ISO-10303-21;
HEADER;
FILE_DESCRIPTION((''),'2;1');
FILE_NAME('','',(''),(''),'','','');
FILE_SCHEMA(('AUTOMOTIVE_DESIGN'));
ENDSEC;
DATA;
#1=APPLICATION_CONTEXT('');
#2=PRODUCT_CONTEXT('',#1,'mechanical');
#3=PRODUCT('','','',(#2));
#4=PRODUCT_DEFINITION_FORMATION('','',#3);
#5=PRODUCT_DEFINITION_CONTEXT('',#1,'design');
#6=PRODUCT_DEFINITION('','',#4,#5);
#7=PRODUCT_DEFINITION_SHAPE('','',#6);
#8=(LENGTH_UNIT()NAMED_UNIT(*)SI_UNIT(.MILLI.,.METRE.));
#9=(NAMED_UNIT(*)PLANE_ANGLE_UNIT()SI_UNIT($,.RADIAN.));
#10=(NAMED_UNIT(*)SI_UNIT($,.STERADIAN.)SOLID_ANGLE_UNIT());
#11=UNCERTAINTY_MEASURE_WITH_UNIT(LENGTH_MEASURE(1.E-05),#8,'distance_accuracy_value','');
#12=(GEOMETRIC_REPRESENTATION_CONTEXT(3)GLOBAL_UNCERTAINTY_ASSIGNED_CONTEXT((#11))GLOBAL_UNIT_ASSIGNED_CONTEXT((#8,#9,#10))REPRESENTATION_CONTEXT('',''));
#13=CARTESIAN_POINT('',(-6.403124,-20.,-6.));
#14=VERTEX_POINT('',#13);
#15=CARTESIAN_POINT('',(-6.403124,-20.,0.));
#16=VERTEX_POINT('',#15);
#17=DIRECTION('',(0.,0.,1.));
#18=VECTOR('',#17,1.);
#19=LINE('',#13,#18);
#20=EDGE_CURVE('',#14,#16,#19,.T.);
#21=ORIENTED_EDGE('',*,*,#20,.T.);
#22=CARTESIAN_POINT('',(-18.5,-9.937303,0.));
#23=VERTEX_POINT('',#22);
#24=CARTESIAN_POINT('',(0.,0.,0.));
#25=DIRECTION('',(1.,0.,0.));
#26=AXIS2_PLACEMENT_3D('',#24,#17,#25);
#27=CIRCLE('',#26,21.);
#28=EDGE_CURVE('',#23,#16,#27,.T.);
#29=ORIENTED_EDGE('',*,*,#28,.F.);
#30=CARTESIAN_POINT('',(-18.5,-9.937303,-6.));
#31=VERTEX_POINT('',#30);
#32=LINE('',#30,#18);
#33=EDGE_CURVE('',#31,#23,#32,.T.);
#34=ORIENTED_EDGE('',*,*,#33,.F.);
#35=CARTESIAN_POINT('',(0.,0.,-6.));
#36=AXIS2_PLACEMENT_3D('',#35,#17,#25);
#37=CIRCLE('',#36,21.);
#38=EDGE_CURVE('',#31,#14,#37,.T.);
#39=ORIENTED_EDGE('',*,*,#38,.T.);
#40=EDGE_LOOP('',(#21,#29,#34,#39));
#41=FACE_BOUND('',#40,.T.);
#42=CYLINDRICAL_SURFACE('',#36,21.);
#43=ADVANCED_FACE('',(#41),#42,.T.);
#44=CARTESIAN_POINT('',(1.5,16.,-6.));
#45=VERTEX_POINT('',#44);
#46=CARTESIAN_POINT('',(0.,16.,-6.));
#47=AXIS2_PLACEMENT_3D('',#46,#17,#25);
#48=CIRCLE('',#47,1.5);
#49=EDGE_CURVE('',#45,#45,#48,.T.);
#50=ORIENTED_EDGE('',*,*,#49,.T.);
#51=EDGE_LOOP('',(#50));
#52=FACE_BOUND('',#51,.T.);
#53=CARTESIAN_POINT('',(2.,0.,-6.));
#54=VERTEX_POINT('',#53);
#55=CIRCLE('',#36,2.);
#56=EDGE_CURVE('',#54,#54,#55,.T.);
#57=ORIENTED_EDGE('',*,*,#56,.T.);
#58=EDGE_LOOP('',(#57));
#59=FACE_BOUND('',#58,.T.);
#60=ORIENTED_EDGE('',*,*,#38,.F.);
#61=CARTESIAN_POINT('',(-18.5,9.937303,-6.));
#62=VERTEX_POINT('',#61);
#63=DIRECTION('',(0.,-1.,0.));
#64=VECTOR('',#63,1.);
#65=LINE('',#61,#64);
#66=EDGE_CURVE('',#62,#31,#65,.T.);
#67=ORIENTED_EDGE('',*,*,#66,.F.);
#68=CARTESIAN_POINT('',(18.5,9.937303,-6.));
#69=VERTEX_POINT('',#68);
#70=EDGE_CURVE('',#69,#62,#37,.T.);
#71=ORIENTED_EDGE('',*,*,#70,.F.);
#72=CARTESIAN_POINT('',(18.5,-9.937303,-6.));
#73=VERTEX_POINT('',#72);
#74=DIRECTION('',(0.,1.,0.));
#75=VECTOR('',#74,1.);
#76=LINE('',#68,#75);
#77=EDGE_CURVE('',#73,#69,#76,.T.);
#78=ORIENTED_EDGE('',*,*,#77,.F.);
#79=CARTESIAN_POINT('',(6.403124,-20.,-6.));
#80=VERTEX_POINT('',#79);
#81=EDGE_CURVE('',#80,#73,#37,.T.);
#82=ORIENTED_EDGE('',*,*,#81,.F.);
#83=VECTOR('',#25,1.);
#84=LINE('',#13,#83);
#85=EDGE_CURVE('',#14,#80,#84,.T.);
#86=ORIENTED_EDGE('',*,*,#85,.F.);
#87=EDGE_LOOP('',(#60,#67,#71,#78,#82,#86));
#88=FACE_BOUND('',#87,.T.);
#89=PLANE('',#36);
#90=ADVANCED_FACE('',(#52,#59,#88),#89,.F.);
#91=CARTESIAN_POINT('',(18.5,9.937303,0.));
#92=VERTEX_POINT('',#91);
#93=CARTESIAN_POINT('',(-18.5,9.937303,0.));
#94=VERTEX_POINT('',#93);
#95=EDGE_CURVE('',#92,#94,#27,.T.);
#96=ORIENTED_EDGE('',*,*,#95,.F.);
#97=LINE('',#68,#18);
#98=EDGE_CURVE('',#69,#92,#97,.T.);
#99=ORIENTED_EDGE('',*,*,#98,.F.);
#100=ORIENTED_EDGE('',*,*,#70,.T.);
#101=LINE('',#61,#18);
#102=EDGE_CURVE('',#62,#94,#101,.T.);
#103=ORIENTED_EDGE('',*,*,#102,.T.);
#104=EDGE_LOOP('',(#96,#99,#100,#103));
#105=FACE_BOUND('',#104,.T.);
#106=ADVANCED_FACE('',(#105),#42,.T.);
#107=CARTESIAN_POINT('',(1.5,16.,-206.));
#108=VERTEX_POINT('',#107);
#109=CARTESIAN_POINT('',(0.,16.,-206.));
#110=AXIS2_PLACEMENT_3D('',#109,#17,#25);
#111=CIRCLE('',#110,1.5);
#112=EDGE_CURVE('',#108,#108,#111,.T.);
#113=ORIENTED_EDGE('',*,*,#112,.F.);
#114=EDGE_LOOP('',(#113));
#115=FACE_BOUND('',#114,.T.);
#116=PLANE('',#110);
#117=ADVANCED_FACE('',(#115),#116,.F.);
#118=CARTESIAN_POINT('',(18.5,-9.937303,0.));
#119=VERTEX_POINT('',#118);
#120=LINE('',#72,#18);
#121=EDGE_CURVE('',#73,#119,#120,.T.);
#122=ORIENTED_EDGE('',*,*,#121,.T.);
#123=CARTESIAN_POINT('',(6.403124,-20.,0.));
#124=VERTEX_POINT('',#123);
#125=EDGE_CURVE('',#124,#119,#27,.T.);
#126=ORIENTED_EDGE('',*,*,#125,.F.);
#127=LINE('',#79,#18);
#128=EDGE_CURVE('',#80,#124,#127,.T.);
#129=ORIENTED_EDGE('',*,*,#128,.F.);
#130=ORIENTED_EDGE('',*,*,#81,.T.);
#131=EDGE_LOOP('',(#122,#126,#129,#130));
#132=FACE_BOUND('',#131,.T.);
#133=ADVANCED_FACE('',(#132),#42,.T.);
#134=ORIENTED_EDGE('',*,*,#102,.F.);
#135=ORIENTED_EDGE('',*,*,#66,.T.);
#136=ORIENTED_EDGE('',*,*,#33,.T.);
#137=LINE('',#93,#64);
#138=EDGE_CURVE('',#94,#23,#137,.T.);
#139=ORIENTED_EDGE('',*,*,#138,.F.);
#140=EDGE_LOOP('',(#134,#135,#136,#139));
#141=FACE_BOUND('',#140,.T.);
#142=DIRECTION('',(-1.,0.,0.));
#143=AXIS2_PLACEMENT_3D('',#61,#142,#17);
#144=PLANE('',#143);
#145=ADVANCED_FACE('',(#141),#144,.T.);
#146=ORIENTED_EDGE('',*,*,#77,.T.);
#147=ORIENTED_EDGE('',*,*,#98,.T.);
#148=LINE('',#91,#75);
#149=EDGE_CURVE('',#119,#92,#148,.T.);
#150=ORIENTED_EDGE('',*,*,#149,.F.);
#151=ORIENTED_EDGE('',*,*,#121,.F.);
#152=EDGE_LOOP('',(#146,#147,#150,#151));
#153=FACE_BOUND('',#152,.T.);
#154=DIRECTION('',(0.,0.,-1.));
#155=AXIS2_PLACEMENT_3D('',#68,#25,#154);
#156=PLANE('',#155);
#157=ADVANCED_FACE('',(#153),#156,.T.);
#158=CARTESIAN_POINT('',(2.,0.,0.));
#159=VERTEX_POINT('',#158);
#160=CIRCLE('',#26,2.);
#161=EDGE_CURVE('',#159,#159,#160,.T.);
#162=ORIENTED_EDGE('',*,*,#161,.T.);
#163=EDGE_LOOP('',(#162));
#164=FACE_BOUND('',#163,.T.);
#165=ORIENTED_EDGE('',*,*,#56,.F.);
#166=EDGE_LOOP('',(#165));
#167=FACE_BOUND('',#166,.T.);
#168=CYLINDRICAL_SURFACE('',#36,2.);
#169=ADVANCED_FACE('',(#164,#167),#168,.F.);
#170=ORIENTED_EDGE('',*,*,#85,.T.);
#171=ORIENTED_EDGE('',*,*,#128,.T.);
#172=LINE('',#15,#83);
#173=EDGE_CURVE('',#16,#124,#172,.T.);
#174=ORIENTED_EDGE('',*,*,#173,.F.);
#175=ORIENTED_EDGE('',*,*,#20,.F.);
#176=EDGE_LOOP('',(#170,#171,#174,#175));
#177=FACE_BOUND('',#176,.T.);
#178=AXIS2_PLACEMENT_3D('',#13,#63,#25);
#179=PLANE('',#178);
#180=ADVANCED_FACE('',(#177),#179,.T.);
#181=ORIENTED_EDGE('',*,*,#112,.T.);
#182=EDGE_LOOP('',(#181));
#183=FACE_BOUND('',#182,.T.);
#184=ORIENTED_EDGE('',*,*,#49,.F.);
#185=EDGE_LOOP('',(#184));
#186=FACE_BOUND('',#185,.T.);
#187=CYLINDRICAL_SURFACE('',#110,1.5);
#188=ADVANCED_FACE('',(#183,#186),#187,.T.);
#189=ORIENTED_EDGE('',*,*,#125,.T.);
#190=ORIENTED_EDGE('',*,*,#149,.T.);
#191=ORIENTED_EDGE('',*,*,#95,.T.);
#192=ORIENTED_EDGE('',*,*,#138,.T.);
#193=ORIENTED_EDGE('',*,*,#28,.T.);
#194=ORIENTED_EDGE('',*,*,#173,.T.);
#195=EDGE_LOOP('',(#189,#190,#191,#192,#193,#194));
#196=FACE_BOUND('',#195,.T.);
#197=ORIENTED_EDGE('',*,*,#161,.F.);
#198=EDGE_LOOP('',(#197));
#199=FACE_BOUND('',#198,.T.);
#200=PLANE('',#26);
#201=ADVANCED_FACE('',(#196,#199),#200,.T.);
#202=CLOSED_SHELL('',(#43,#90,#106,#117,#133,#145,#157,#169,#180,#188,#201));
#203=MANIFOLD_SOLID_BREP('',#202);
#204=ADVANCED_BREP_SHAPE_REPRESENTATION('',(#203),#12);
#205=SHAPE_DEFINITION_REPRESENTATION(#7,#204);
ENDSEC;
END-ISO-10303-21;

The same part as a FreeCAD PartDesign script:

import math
import FreeCAD as App
import Part
import Sketcher
Q = App.Units.Quantity

doc = App.newDocument("Part")
params = doc.addObject("Spreadsheet::Sheet", "Params")
for row, (alias, value) in enumerate([
    ("sketch1_diameter", "4 mm"),
    ("sketch1_diameter2", "3 mm"),
    ("sketch1_radius", "21 mm"),
    ("pad1_length", "6 mm"),
    ("sketch2_diameter", "3 mm"),
    ("pad2_length", "206 mm"),
], start=1):
    params.set(f"A{row}", alias)
    params.set(f"B{row}", "=" + value)
    params.setAlias(f"B{row}", alias)

body = doc.addObject("PartDesign::Body", "Body")

# Sketch on XY plane
sketch1 = body.newObject("Sketcher::SketchObject", "Sketch")
sketch1.AttachmentSupport = (doc.getObject("XY_Plane"), [""])
sketch1.MapMode = "FlatFace"
sketch1.addGeometry(Part.LineSegment(App.Vector(-18.5, 9.9, 0), App.Vector(-18.5, -9.9, 0)), False)
sketch1.addGeometry(Part.ArcOfCircle(Part.Circle(App.Vector(0, 0, 0), App.Vector(0, 0, 1), 21), math.radians(-152), math.radians(-108)), False)
sketch1.addGeometry(Part.LineSegment(App.Vector(-6.4, -20, 0), App.Vector(6.4, -20, 0)), False)
sketch1.addGeometry(Part.ArcOfCircle(Part.Circle(App.Vector(0, 0, 0), App.Vector(0, 0, 1), 21), math.radians(-72), math.radians(-28)), False)
sketch1.addGeometry(Part.LineSegment(App.Vector(18.5, -9.9, 0), App.Vector(18.5, 9.9, 0)), False)
sketch1.addGeometry(Part.ArcOfCircle(Part.Circle(App.Vector(0, 0, 0), App.Vector(0, 0, 1), 21), math.radians(28), math.radians(152)), False)
sketch1.addGeometry(Part.Circle(App.Vector(0, 0, 0), App.Vector(0, 0, 1), 2), False)
sketch1.addGeometry(Part.Circle(App.Vector(0, 16, 0), App.Vector(0, 0, 1), 1.5), False)
sketch1.addConstraint(Sketcher.Constraint("Coincident", 0, 2, 1, 1))
sketch1.addConstraint(Sketcher.Constraint("Coincident", 1, 2, 2, 1))
sketch1.addConstraint(Sketcher.Constraint("Coincident", 2, 2, 3, 1))
sketch1.addConstraint(Sketcher.Constraint("Coincident", 3, 2, 4, 1))
sketch1.addConstraint(Sketcher.Constraint("Coincident", 4, 2, 5, 1))
sketch1.addConstraint(Sketcher.Constraint("Coincident", 5, 2, 0, 1))
sketch1.addConstraint(Sketcher.Constraint("Vertical", 0))
sketch1.addConstraint(Sketcher.Constraint("Horizontal", 2))
sketch1.addConstraint(Sketcher.Constraint("Vertical", 4))
sketch1.addConstraint(Sketcher.Constraint("Coincident", 1, 3, -1, 1))
sketch1.addConstraint(Sketcher.Constraint("Coincident", 3, 3, -1, 1))
sketch1.addConstraint(Sketcher.Constraint("Coincident", 5, 3, -1, 1))
sketch1.addConstraint(Sketcher.Constraint("Coincident", 6, 3, -1, 1))
sketch1.addConstraint(Sketcher.Constraint("Equal", 1, 3))
sketch1.addConstraint(Sketcher.Constraint("Equal", 3, 5))
sketch1.addConstraint(Sketcher.Constraint("PointOnObject", 7, 3, -2))
sketch1.addConstraint(Sketcher.Constraint("Horizontal", 0, 2, 3, 2))
sketch1.addConstraint(Sketcher.Constraint("Diameter", 6, Q("4 mm")))
sketch1.addConstraint(Sketcher.Constraint("Diameter", 7, Q("3 mm")))
sketch1.addConstraint(Sketcher.Constraint("Radius", 1, Q("21 mm")))
sketch1.addConstraint(Sketcher.Constraint("DistanceY", -1, 1, 7, 3, Q("16 mm")))
sketch1.addConstraint(Sketcher.Constraint("DistanceY", 1, 2, -1, 1, Q("20 mm")))
sketch1.addConstraint(Sketcher.Constraint("DistanceX", 0, 2, -1, 1, Q("18.5 mm")))
sketch1.setExpression("Constraints[17]", "Params.sketch1_diameter")
sketch1.setExpression("Constraints[18]", "Params.sketch1_diameter2")
sketch1.setExpression("Constraints[19]", "Params.sketch1_radius")
pad1 = body.newObject("PartDesign::Pad", "Pad")
pad1.Profile = sketch1
pad1.setExpression("Length", "Params.pad1_length")
pad1.Reversed = True

# Sketch on XY plane
sketch2 = body.newObject("Sketcher::SketchObject", "Sketch001")
sketch2.AttachmentSupport = (doc.getObject("XY_Plane"), [""])
sketch2.MapMode = "FlatFace"
sketch2.addGeometry(Part.Circle(App.Vector(0, 16, 0), App.Vector(0, 0, 1), 1.5), False)
sketch2.addConstraint(Sketcher.Constraint("PointOnObject", 0, 3, -2))
sketch2.addConstraint(Sketcher.Constraint("Diameter", 0, Q("3 mm")))
sketch2.addConstraint(Sketcher.Constraint("DistanceY", -1, 1, 0, 3, Q("16 mm")))
sketch2.setExpression("Constraints[1]", "Params.sketch2_diameter")
pad2 = body.newObject("PartDesign::Pad", "Pad001")
pad2.Profile = sketch2
pad2.setExpression("Length", "Params.pad2_length")
pad2.Reversed = True

doc.recompute()
